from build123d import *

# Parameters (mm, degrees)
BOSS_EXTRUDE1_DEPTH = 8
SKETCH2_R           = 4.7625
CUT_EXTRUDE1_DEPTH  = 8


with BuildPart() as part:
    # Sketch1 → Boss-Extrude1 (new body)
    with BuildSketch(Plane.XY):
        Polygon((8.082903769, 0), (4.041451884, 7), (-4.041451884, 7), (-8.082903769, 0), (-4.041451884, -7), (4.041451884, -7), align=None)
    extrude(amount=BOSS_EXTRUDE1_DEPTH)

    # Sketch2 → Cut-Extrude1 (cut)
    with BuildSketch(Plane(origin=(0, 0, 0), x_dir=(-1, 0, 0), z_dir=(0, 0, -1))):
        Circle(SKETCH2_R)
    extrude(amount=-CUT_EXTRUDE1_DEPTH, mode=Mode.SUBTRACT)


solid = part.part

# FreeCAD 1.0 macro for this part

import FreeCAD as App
import Part
import Sketcher

V = App.Vector
Q = App.Units.Quantity


def add_polygon(sketch, points):
    """Adds a closed chain of lines whose ends are joined by coincident constraints."""
    first, n = sketch.GeometryCount, len(points)
    for a, b in zip(points, points[1:] + points[:1]):
        sketch.addGeometry(Part.LineSegment(App.Vector(*a, 0), App.Vector(*b, 0)), False)
    for i in range(n):
        sketch.addConstraint(Sketcher.Constraint("Coincident", first + i, 2, first + (i + 1) % n, 1))

doc = App.newDocument("Part")
body = doc.addObject("PartDesign::Body", "Body")

# Sketch on XY plane
sketch1 = doc.addObject("Sketcher::SketchObject", "Sketch")
body.addObject(sketch1)
sketch1.AttachmentSupport = (doc.XY_Plane, [""])
sketch1.MapMode = "FlatFace"
add_polygon(sketch1, [(8.082904, 0), (4.041452, 7), (-4.041452, 7), (-8.082904, 0), (-4.041452, -7), (4.041452, -7)])  # lines 0-5
sketch1.addConstraint([
    Sketcher.Constraint("Horizontal", 1),
    Sketcher.Constraint("Horizontal", 4),
    Sketcher.Constraint("Symmetric", 0, 2, 3, 2, -1, 1),
    Sketcher.Constraint("Symmetric", 2, 2, 5, 2, -1, 1),
    Sketcher.Constraint("PointOnObject", 2, 2, -1),
    Sketcher.Constraint("Parallel", 2, 5),
    Sketcher.Constraint("Vertical", 1, 2, 3, 2),
    Sketcher.Constraint("Angle", 0, Q("120 deg")),
    Sketcher.Constraint("DistanceY", -1, 1, 0, 2, 7.0),
    Sketcher.Constraint("DistanceX", 1, 2, 1, 1, 8.082904),
])
pad1 = doc.addObject("PartDesign::Pad", "Pad")
body.addObject(pad1)
pad1.Profile = sketch1
pad1.Length = 8

# Sketch on XY plane
sketch2 = doc.addObject("Sketcher::SketchObject", "Sketch001")
body.addObject(sketch2)
sketch2.AttachmentSupport = (doc.XY_Plane, [""])
sketch2.MapMode = "FlatFace"
sketch2.addGeometry(Part.Circle(V(0, 0, 0), V(0, 0, 1), 4.7625), False)
sketch2.addConstraint([
    Sketcher.Constraint("Coincident", 0, 3, -1, 1),
    Sketcher.Constraint("Diameter", 0, 9.525),
])
pocket1 = doc.addObject("PartDesign::Pocket", "Pocket")
body.addObject(pocket1)
pocket1.Profile = sketch2
pocket1.Length = 8
pocket1.Reversed = True

doc.recompute()
